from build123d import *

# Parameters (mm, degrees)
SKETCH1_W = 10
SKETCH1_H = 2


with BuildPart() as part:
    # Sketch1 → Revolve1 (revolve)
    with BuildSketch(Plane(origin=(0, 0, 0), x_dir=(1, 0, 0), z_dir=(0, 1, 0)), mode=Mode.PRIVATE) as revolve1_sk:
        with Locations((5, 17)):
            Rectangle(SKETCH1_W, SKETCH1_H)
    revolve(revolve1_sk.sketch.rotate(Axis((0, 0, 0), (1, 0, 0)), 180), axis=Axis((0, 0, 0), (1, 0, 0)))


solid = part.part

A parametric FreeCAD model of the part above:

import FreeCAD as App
import Part
import Sketcher
from FreeCAD import Vector
Q = App.Units.Quantity

doc = App.newDocument("Part")
body = doc.addObject("PartDesign::Body", "Body")

# Sketch on XZ plane
sketch1 = body.newObject("Sketcher::SketchObject", "Sketch")
sketch1.AttachmentSupport = (doc.getObject("XZ_Plane"), [""])
sketch1.MapMode = "FlatFace"
sketch1.addGeometry([
    Part.LineSegment(Vector(0, -18, 0), Vector(0, -16, 0)),
    Part.LineSegment(Vector(0, -16, 0), Vector(10, -16, 0)),
    Part.LineSegment(Vector(10, -16, 0), Vector(10, -18, 0)),
    Part.LineSegment(Vector(10, -18, 0), Vector(0, -18, 0)),
], False)
sketch1.addConstraint([
    Sketcher.Constraint("Coincident", 0, 2, 1, 1),
    Sketcher.Constraint("Coincident", 1, 2, 2, 1),
    Sketcher.Constraint("Coincident", 2, 2, 3, 1),
    Sketcher.Constraint("Coincident", 3, 2, 0, 1),
    Sketcher.Constraint("Vertical", 0),
    Sketcher.Constraint("Horizontal", 1),
    Sketcher.Constraint("Vertical", 2),
    Sketcher.Constraint("Horizontal", 3),
    Sketcher.Constraint("PointOnObject", 0, 2, -2),
    Sketcher.Constraint("DistanceX", 1, 1, 1, 2, Q("10 mm")),
    Sketcher.Constraint("DistanceY", 0, 1, 0, 2, Q("2 mm")),
    Sketcher.Constraint("DistanceY", 0, 2, -1, 1, Q("16 mm")),
])
revolution = body.newObject("PartDesign::Revolution", "Revolution")
revolution.Profile = sketch1
revolution.ReferenceAxis = (sketch1, ["H_Axis"])
revolution.Angle = 360

doc.recompute()
